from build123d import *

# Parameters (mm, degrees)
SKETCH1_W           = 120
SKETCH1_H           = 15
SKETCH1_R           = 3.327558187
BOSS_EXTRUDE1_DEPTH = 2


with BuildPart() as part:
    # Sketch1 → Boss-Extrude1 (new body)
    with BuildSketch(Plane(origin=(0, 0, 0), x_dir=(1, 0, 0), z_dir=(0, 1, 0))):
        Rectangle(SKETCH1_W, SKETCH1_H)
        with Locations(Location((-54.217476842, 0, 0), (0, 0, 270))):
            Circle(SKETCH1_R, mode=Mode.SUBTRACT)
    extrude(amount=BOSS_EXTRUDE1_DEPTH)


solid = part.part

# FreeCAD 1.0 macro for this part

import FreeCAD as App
import Part
import Sketcher
from FreeCAD import Vector

doc = App.newDocument("Part")
params = doc.addObject("Spreadsheet::Sheet", "Params")
for row, (alias, value) in enumerate([
    ("sketch1_width", "120 mm"),
    ("sketch1_height", "15 mm"),
    ("pad1_length", "2 mm"),
], start=1):
    params.set(f"A{row}", alias)
    params.set(f"B{row}", "=" + value)
    params.setAlias(f"B{row}", alias)

body = doc.addObject("PartDesign::Body", "Body")

# Sketch on XZ plane
sketch1 = body.newObject("Sketcher::SketchObject", "Sketch")
sketch1.AttachmentSupport = (doc.getObject("XZ_Plane"), [""])
sketch1.MapMode = "FlatFace"
sketch1.addGeometry(Part.LineSegment(Vector(-60, -7.5, 0), Vector(-60, 7.5, 0)), False)
sketch1.addGeometry(Part.LineSegment(Vector(-60, 7.5, 0), Vector(60, 7.5, 0)), False)
sketch1.addGeometry(Part.LineSegment(Vector(60, 7.5, 0), Vector(60, -7.5, 0)), False)
sketch1.addGeometry(Part.LineSegment(Vector(60, -7.5, 0), Vector(-60, -7.5, 0)), False)
sketch1.addGeometry(Part.Circle(Vector(-54.2, 0, 0), Vector(0, 0, 1), 3.3), False)
sketch1.addConstraint(Sketcher.Constraint("Coincident", 0, 2, 1, 1))
sketch1.addConstraint(Sketcher.Constraint("Coincident", 1, 2, 2, 1))
sketch1.addConstraint(Sketcher.Constraint("Coincident", 2, 2, 3, 1))
sketch1.addConstraint(Sketcher.Constraint("Coincident", 3, 2, 0, 1))
sketch1.addConstraint(Sketcher.Constraint("Vertical", 0))
sketch1.addConstraint(Sketcher.Constraint("Horizontal", 1))
sketch1.addConstraint(Sketcher.Constraint("Vertical", 2))
sketch1.addConstraint(Sketcher.Constraint("Horizontal", 3))
sketch1.addConstraint(Sketcher.Constraint("Symmetric", 0, 2, 2, 2, -1, 1))
sketch1.addConstraint(Sketcher.Constraint("PointOnObject", 4, 3, -1))
sketch1.addConstraint(Sketcher.Constraint("DistanceX", 1, 1, 1, 2, 120.0))
sketch1.addConstraint(Sketcher.Constraint("DistanceY", 0, 1, 0, 2, 15.0))
sketch1.addConstraint(Sketcher.Constraint("Diameter", 4, 6.655116))
sketch1.addConstraint(Sketcher.Constraint("DistanceX", 4, 3, -1, 1, 54.217477))
sketch1.setExpression("Constraints[10]", "Params.sketch1_width")
sketch1.setExpression("Constraints[11]", "Params.sketch1_height")
pad1 = body.newObject("PartDesign::Pad", "Pad")
pad1.Profile = sketch1
pad1.setExpression("Length", "Params.pad1_length")
pad1.Reversed = True

doc.recompute()
